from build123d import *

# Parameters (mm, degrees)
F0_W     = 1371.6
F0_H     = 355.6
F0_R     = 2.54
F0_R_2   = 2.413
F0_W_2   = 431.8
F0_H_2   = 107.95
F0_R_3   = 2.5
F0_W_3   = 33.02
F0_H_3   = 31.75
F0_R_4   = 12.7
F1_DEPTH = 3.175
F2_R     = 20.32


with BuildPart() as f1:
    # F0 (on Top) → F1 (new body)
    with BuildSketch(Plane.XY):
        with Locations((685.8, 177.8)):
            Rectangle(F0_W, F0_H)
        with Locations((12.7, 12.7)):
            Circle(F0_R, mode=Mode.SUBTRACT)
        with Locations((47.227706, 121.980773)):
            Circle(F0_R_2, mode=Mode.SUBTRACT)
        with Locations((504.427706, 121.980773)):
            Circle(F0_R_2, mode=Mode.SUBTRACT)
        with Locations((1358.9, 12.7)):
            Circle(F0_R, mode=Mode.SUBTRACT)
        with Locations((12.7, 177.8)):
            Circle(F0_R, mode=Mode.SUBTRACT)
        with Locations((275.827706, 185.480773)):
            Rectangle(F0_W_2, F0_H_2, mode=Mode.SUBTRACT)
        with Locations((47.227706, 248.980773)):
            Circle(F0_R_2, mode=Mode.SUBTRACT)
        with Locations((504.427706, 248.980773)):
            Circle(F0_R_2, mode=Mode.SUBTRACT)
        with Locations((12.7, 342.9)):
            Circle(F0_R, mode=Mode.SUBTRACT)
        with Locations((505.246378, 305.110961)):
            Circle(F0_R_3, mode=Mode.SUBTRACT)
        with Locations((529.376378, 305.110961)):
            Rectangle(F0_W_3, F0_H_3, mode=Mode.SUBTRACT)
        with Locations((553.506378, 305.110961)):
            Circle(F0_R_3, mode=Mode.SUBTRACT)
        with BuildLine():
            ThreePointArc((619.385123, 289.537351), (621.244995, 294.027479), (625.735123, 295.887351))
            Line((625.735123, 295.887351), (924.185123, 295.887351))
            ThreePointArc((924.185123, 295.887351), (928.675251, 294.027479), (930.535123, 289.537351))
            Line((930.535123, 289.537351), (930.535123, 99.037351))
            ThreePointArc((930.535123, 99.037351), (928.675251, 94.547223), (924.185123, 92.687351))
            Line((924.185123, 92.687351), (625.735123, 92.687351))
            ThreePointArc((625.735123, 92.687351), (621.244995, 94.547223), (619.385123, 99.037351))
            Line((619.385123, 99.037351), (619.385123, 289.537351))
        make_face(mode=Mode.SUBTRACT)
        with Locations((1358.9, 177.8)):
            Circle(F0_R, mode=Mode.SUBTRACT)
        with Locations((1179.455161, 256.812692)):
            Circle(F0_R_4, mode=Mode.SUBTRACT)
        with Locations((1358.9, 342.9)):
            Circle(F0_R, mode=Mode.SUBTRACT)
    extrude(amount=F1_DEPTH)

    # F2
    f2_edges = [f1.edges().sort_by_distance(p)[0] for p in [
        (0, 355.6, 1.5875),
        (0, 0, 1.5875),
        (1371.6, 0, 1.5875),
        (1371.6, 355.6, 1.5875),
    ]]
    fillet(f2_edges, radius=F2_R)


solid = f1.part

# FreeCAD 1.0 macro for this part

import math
import FreeCAD as App
import Part
import Sketcher
from FreeCAD import Vector
Q = App.Units.Quantity


def edges_at(feature, points):
    """Names of the edges that pass closest to the given points."""
    edges = feature.Shape.Edges
    near = lambda p: min(range(len(edges)), key=lambda i: edges[i].distToShape(Part.Vertex(*p))[0])
    return sorted({f"Edge{near(p) + 1}" for p in points})

doc = App.newDocument("Part")
body = doc.addObject("PartDesign::Body", "Body")

# Sketch on XY plane
sketch1 = body.newObject("Sketcher::SketchObject", "Sketch")
sketch1.AttachmentSupport = (doc.getObject("XY_Plane"), [""])
sketch1.MapMode = "FlatFace"
sketch1.addGeometry(Part.LineSegment(Vector(0, 355.6, 0), Vector(0, 0, 0)), False)
sketch1.addGeometry(Part.LineSegment(Vector(0, 0, 0), Vector(1371.6, 0, 0)), False)
sketch1.addGeometry(Part.LineSegment(Vector(1371.6, 0, 0), Vector(1371.6, 355.6, 0)), False)
sketch1.addGeometry(Part.LineSegment(Vector(1371.6, 355.6, 0), Vector(0, 355.6, 0)), False)
sketch1.addGeometry(Part.Circle(Vector(12.7, 12.7, 0), Vector(0, 0, 1), 2.54), False)
sketch1.addGeometry(Part.Circle(Vector(47.227706, 121.980773, 0), Vector(0, 0, 1), 2.413), False)
sketch1.addGeometry(Part.Circle(Vector(504.427706, 121.980773, 0), Vector(0, 0, 1), 2.413), False)
sketch1.addGeometry(Part.Circle(Vector(1358.9, 12.7, 0), Vector(0, 0, 1), 2.54), False)
sketch1.addGeometry(Part.Circle(Vector(12.7, 177.8, 0), Vector(0, 0, 1), 2.54), False)
sketch1.addGeometry(Part.LineSegment(Vector(491.727706, 131.505773, 0), Vector(59.927706, 131.505773, 0)), False)
sketch1.addGeometry(Part.LineSegment(Vector(59.927706, 131.505773, 0), Vector(59.927706, 239.455773, 0)), False)
sketch1.addGeometry(Part.LineSegment(Vector(59.927706, 239.455773, 0), Vector(491.727706, 239.455773, 0)), False)
sketch1.addGeometry(Part.LineSegment(Vector(491.727706, 239.455773, 0), Vector(491.727706, 131.505773, 0)), False)
sketch1.addGeometry(Part.Circle(Vector(47.227706, 248.980773, 0), Vector(0, 0, 1), 2.413), False)
sketch1.addGeometry(Part.Circle(Vector(504.427706, 248.980773, 0), Vector(0, 0, 1), 2.413), False)
sketch1.addGeometry(Part.Circle(Vector(12.7, 342.9, 0), Vector(0, 0, 1), 2.54), False)
sketch1.addGeometry(Part.Circle(Vector(505.246378, 305.110961, 0), Vector(0, 0, 1), 2.5), False)
sketch1.addGeometry(Part.LineSegment(Vector(545.886378, 289.235961, 0), Vector(512.866378, 289.235961, 0)), False)
sketch1.addGeometry(Part.LineSegment(Vector(512.866378, 289.235961, 0), Vector(512.866378, 320.985961, 0)), False)
sketch1.addGeometry(Part.LineSegment(Vector(512.866378, 320.985961, 0), Vector(545.886378, 320.985961, 0)), False)
sketch1.addGeometry(Part.LineSegment(Vector(545.886378, 320.985961, 0), Vector(545.886378, 289.235961, 0)), False)
sketch1.addGeometry(Part.Circle(Vector(553.506378, 305.110961, 0), Vector(0, 0, 1), 2.5), False)
sketch1.addGeometry(Part.LineSegment(Vector(619.385123, 99.037351, 0), Vector(619.385123, 289.537351, 0)), False)
sketch1.addGeometry(Part.ArcOfCircle(Part.Circle(Vector(625.735123, 289.537351, 0), Vector(0, 0, 1), 6.35), math.radians(90.000002), math.radians(179.999998)), False)
sketch1.addGeometry(Part.LineSegment(Vector(625.735123, 295.887351, 0), Vector(924.185123, 295.887351, 0)), False)
sketch1.addGeometry(Part.ArcOfCircle(Part.Circle(Vector(924.185123, 289.537351, 0), Vector(0, 0, 1), 6.35), math.radians(0.000002), math.radians(89.999998)), False)
sketch1.addGeometry(Part.LineSegment(Vector(930.535123, 289.537351, 0), Vector(930.535123, 99.037351, 0)), False)
sketch1.addGeometry(Part.ArcOfCircle(Part.Circle(Vector(924.185123, 99.037351, 0), Vector(0, 0, 1), 6.35), math.radians(-89.999998), math.radians(-0.000002)), False)
sketch1.addGeometry(Part.LineSegment(Vector(924.185123, 92.687351, 0), Vector(625.735123, 92.687351, 0)), False)
sketch1.addGeometry(Part.ArcOfCircle(Part.Circle(Vector(625.735123, 99.037351, 0), Vector(0, 0, 1), 6.35), math.radians(-179.999998), math.radians(-90.000002)), False)
sketch1.addGeometry(Part.Circle(Vector(1358.9, 177.8, 0), Vector(0, 0, 1), 2.54), False)
sketch1.addGeometry(Part.Circle(Vector(1179.455161, 256.812692, 0), Vector(0, 0, 1), 12.7), False)
sketch1.addGeometry(Part.Circle(Vector(1358.9, 342.9, 0), Vector(0, 0, 1), 2.54), False)
sketch1.addConstraint(Sketcher.Constraint("Coincident", 0, 2, 1, 1))
sketch1.addConstraint(Sketcher.Constraint("Coincident", 1, 2, 2, 1))
sketch1.addConstraint(Sketcher.Constraint("Coincident", 2, 2, 3, 1))
sketch1.addConstraint(Sketcher.Constraint("Coincident", 3, 2, 0, 1))
sketch1.addConstraint(Sketcher.Constraint("Coincident", 9, 2, 10, 1))
sketch1.addConstraint(Sketcher.Constraint("Coincident", 10, 2, 11, 1))
sketch1.addConstraint(Sketcher.Constraint("Coincident", 11, 2, 12, 1))
sketch1.addConstraint(Sketcher.Constraint("Coincident", 12, 2, 9, 1))
sketch1.addConstraint(Sketcher.Constraint("Coincident", 17, 2, 18, 1))
sketch1.addConstraint(Sketcher.Constraint("Coincident", 18, 2, 19, 1))
sketch1.addConstraint(Sketcher.Constraint("Coincident", 19, 2, 20, 1))
sketch1.addConstraint(Sketcher.Constraint("Coincident", 20, 2, 17, 1))
sketch1.addConstraint(Sketcher.Constraint("Tangent", 22, 2, 23, 2))
sketch1.addConstraint(Sketcher.Constraint("Tangent", 23, 1, 24, 1))
sketch1.addConstraint(Sketcher.Constraint("Tangent", 24, 2, 25, 2))
sketch1.addConstraint(Sketcher.Constraint("Tangent", 25, 1, 26, 1))
sketch1.addConstraint(Sketcher.Constraint("Tangent", 26, 2, 27, 2))
sketch1.addConstraint(Sketcher.Constraint("Tangent", 27, 1, 28, 1))
sketch1.addConstraint(Sketcher.Constraint("Tangent", 28, 2, 29, 2))
sketch1.addConstraint(Sketcher.Constraint("Tangent", 29, 1, 22, 1))
sketch1.addConstraint(Sketcher.Constraint("Vertical", 0))
sketch1.addConstraint(Sketcher.Constraint("Horizontal", 1))
sketch1.addConstraint(Sketcher.Constraint("Vertical", 2))
sketch1.addConstraint(Sketcher.Constraint("Horizontal", 3))
sketch1.addConstraint(Sketcher.Constraint("Horizontal", 9))
sketch1.addConstraint(Sketcher.Constraint("Vertical", 10))
sketch1.addConstraint(Sketcher.Constraint("Horizontal", 11))
sketch1.addConstraint(Sketcher.Constraint("Vertical", 12))
sketch1.addConstraint(Sketcher.Constraint("Horizontal", 17))
sketch1.addConstraint(Sketcher.Constraint("Vertical", 18))
sketch1.addConstraint(Sketcher.Constraint("Horizontal", 19))
sketch1.addConstraint(Sketcher.Constraint("Vertical", 20))
sketch1.addConstraint(Sketcher.Constraint("Vertical", 22))
sketch1.addConstraint(Sketcher.Constraint("Horizontal", 24))
sketch1.addConstraint(Sketcher.Constraint("Vertical", 26))
sketch1.addConstraint(Sketcher.Constraint("Horizontal", 28))
sketch1.addConstraint(Sketcher.Constraint("Coincident", 0, 2, -1, 1))
sketch1.addConstraint(Sketcher.Constraint("Equal", 5, 6))
sketch1.addConstraint(Sketcher.Constraint("Equal", 4, 7))
sketch1.addConstraint(Sketcher.Constraint("Equal", 7, 8))
sketch1.addConstraint(Sketcher.Constraint("Equal", 6, 13))
sketch1.addConstraint(Sketcher.Constraint("Equal", 13, 14))
sketch1.addConstraint(Sketcher.Constraint("Equal", 8, 15))
sketch1.addConstraint(Sketcher.Constraint("Equal", 16, 21))
sketch1.addConstraint(Sketcher.Constraint("Equal", 23, 25))
sketch1.addConstraint(Sketcher.Constraint("Equal", 25, 27))
sketch1.addConstraint(Sketcher.Constraint("Equal", 27, 29))
sketch1.addConstraint(Sketcher.Constraint("Equal", 15, 30))
sketch1.addConstraint(Sketcher.Constraint("Equal", 30, 32))
sketch1.addConstraint(Sketcher.Constraint("Horizontal", 5, 3, 6, 3))
sketch1.addConstraint(Sketcher.Constraint("Horizontal", 4, 3, 7, 3))
sketch1.addConstraint(Sketcher.Constraint("Horizontal", 13, 3, 14, 3))
sketch1.addConstraint(Sketcher.Constraint("Horizontal", 16, 3, 21, 3))
sketch1.addConstraint(Sketcher.Constraint("Horizontal", 8, 3, 30, 3))
sketch1.addConstraint(Sketcher.Constraint("Horizontal", 15, 3, 32, 3))
sketch1.addConstraint(Sketcher.Constraint("Vertical", 4, 3, 8, 3))
sketch1.addConstraint(Sketcher.Constraint("Vertical", 5, 3, 13, 3))
sketch1.addConstraint(Sketcher.Constraint("Vertical", 6, 3, 14, 3))
sketch1.addConstraint(Sketcher.Constraint("Vertical", 8, 3, 15, 3))
sketch1.addConstraint(Sketcher.Constraint("Vertical", 7, 3, 30, 3))
sketch1.addConstraint(Sketcher.Constraint("Vertical", 30, 3, 32, 3))
sketch1.addConstraint(Sketcher.Constraint("Diameter", 31, Q("1 in")))
sketch1.addConstraint(Sketcher.Constraint("Diameter", 4, Q("0.2 in")))
sketch1.addConstraint(Sketcher.Constraint("Diameter", 5, Q("0.19 in")))
sketch1.addConstraint(Sketcher.Constraint("DistanceX", 1, 1, 1, 2, Q("54 in")))
sketch1.addConstraint(Sketcher.Constraint("DistanceX", 9, 2, 9, 1, Q("17 in")))
sketch1.addConstraint(Sketcher.Constraint("DistanceY", 0, 2, 0, 1, Q("14 in")))
sketch1.addConstraint(Sketcher.Constraint("Radius", 23, Q("0.25 in")))
sketch1.addConstraint(Sketcher.Constraint("DistanceX", 17, 2, 17, 1, Q("1.3 in")))
sketch1.addConstraint(Sketcher.Constraint("DistanceY", 22, 1, 22, 2, Q("7.5 in")))
sketch1.addConstraint(Sketcher.Constraint("DistanceY", -1, 1, 8, 3, Q("7 in")))
sketch1.addConstraint(Sketcher.Constraint("DistanceX", 5, 3, 6, 3, Q("18 in")))
sketch1.addConstraint(Sketcher.Constraint("DistanceX", 4, 3, 7, 3, Q("53 in")))
sketch1.addConstraint(Sketcher.Constraint("DistanceY", 5, 3, 13, 3, Q("5 in")))
sketch1.addConstraint(Sketcher.Constraint("DistanceY", 4, 3, 15, 3, Q("13 in")))
sketch1.addConstraint(Sketcher.Constraint("DistanceX", 23, 3, 25, 1, Q("12 in")))
sketch1.addConstraint(Sketcher.Constraint("DistanceY", 10, 1, 10, 2, Q("4.25 in")))
sketch1.addConstraint(Sketcher.Constraint("DistanceY", 18, 1, 18, 2, Q("1.25 in")))
sketch1.addConstraint(Sketcher.Constraint("DistanceX", -1, 1, 4, 3, Q("0.5 in")))
sketch1.addConstraint(Sketcher.Constraint("DistanceY", -1, 1, 4, 3, Q("0.5 in")))
sketch1.addConstraint(Sketcher.Constraint("DistanceX", 16, 3, 21, 3, Q("1.9 in")))
sketch1.addConstraint(Sketcher.Constraint("DistanceX", 5, 3, 9, 2, Q("0.5 in")))
sketch1.addConstraint(Sketcher.Constraint("DistanceX", 16, 3, 17, 2, Q("0.3 in")))
sketch1.addConstraint(Sketcher.Constraint("Diameter", 16, Q("5 mm")))
sketch1.addConstraint(Sketcher.Constraint("DistanceY", 5, 3, 9, 2, Q("0.375 in")))
sketch1.addConstraint(Sketcher.Constraint("DistanceY", 17, 2, 16, 3, Q("0.625 in")))
sketch1.addConstraint(Sketcher.Constraint("DistanceX", -1, 1, 16, 3, Q("505.246378 mm")))
sketch1.addConstraint(Sketcher.Constraint("DistanceY", -1, 1, 16, 3, Q("305.110961 mm")))
sketch1.addConstraint(Sketcher.Constraint("DistanceY", -1, 1, 23, 3, Q("289.537351 mm")))
sketch1.addConstraint(Sketcher.Constraint("DistanceX", -1, 1, 31, 3, Q("1179.455161 mm")))
sketch1.addConstraint(Sketcher.Constraint("DistanceX", 14, 3, 16, 3, Q("0.818672 mm")))
sketch1.addConstraint(Sketcher.Constraint("DistanceY", 27, 3, 6, 3, Q("22.943422 mm")))
sketch1.addConstraint(Sketcher.Constraint("DistanceX", 25, 3, 31, 3, Q("255.270038 mm")))
sketch1.addConstraint(Sketcher.Constraint("DistanceY", 31, 3, 25, 3, Q("32.724659 mm")))
pad1 = body.newObject("PartDesign::Pad", "Pad")
pad1.Profile = sketch1
pad1.Length = Q("0.125 in")
doc.recompute()

fillet = body.newObject("PartDesign::Fillet", "Fillet")
fillet.Base = (pad1, edges_at(pad1, [
    (0, 355.6, 1.587),
    (0, 0, 1.587),
    (1371.6, 0, 1.587),
    (1371.6, 355.6, 1.587),
]))
fillet.Radius = Q("0.8 in")

doc.recompute()
